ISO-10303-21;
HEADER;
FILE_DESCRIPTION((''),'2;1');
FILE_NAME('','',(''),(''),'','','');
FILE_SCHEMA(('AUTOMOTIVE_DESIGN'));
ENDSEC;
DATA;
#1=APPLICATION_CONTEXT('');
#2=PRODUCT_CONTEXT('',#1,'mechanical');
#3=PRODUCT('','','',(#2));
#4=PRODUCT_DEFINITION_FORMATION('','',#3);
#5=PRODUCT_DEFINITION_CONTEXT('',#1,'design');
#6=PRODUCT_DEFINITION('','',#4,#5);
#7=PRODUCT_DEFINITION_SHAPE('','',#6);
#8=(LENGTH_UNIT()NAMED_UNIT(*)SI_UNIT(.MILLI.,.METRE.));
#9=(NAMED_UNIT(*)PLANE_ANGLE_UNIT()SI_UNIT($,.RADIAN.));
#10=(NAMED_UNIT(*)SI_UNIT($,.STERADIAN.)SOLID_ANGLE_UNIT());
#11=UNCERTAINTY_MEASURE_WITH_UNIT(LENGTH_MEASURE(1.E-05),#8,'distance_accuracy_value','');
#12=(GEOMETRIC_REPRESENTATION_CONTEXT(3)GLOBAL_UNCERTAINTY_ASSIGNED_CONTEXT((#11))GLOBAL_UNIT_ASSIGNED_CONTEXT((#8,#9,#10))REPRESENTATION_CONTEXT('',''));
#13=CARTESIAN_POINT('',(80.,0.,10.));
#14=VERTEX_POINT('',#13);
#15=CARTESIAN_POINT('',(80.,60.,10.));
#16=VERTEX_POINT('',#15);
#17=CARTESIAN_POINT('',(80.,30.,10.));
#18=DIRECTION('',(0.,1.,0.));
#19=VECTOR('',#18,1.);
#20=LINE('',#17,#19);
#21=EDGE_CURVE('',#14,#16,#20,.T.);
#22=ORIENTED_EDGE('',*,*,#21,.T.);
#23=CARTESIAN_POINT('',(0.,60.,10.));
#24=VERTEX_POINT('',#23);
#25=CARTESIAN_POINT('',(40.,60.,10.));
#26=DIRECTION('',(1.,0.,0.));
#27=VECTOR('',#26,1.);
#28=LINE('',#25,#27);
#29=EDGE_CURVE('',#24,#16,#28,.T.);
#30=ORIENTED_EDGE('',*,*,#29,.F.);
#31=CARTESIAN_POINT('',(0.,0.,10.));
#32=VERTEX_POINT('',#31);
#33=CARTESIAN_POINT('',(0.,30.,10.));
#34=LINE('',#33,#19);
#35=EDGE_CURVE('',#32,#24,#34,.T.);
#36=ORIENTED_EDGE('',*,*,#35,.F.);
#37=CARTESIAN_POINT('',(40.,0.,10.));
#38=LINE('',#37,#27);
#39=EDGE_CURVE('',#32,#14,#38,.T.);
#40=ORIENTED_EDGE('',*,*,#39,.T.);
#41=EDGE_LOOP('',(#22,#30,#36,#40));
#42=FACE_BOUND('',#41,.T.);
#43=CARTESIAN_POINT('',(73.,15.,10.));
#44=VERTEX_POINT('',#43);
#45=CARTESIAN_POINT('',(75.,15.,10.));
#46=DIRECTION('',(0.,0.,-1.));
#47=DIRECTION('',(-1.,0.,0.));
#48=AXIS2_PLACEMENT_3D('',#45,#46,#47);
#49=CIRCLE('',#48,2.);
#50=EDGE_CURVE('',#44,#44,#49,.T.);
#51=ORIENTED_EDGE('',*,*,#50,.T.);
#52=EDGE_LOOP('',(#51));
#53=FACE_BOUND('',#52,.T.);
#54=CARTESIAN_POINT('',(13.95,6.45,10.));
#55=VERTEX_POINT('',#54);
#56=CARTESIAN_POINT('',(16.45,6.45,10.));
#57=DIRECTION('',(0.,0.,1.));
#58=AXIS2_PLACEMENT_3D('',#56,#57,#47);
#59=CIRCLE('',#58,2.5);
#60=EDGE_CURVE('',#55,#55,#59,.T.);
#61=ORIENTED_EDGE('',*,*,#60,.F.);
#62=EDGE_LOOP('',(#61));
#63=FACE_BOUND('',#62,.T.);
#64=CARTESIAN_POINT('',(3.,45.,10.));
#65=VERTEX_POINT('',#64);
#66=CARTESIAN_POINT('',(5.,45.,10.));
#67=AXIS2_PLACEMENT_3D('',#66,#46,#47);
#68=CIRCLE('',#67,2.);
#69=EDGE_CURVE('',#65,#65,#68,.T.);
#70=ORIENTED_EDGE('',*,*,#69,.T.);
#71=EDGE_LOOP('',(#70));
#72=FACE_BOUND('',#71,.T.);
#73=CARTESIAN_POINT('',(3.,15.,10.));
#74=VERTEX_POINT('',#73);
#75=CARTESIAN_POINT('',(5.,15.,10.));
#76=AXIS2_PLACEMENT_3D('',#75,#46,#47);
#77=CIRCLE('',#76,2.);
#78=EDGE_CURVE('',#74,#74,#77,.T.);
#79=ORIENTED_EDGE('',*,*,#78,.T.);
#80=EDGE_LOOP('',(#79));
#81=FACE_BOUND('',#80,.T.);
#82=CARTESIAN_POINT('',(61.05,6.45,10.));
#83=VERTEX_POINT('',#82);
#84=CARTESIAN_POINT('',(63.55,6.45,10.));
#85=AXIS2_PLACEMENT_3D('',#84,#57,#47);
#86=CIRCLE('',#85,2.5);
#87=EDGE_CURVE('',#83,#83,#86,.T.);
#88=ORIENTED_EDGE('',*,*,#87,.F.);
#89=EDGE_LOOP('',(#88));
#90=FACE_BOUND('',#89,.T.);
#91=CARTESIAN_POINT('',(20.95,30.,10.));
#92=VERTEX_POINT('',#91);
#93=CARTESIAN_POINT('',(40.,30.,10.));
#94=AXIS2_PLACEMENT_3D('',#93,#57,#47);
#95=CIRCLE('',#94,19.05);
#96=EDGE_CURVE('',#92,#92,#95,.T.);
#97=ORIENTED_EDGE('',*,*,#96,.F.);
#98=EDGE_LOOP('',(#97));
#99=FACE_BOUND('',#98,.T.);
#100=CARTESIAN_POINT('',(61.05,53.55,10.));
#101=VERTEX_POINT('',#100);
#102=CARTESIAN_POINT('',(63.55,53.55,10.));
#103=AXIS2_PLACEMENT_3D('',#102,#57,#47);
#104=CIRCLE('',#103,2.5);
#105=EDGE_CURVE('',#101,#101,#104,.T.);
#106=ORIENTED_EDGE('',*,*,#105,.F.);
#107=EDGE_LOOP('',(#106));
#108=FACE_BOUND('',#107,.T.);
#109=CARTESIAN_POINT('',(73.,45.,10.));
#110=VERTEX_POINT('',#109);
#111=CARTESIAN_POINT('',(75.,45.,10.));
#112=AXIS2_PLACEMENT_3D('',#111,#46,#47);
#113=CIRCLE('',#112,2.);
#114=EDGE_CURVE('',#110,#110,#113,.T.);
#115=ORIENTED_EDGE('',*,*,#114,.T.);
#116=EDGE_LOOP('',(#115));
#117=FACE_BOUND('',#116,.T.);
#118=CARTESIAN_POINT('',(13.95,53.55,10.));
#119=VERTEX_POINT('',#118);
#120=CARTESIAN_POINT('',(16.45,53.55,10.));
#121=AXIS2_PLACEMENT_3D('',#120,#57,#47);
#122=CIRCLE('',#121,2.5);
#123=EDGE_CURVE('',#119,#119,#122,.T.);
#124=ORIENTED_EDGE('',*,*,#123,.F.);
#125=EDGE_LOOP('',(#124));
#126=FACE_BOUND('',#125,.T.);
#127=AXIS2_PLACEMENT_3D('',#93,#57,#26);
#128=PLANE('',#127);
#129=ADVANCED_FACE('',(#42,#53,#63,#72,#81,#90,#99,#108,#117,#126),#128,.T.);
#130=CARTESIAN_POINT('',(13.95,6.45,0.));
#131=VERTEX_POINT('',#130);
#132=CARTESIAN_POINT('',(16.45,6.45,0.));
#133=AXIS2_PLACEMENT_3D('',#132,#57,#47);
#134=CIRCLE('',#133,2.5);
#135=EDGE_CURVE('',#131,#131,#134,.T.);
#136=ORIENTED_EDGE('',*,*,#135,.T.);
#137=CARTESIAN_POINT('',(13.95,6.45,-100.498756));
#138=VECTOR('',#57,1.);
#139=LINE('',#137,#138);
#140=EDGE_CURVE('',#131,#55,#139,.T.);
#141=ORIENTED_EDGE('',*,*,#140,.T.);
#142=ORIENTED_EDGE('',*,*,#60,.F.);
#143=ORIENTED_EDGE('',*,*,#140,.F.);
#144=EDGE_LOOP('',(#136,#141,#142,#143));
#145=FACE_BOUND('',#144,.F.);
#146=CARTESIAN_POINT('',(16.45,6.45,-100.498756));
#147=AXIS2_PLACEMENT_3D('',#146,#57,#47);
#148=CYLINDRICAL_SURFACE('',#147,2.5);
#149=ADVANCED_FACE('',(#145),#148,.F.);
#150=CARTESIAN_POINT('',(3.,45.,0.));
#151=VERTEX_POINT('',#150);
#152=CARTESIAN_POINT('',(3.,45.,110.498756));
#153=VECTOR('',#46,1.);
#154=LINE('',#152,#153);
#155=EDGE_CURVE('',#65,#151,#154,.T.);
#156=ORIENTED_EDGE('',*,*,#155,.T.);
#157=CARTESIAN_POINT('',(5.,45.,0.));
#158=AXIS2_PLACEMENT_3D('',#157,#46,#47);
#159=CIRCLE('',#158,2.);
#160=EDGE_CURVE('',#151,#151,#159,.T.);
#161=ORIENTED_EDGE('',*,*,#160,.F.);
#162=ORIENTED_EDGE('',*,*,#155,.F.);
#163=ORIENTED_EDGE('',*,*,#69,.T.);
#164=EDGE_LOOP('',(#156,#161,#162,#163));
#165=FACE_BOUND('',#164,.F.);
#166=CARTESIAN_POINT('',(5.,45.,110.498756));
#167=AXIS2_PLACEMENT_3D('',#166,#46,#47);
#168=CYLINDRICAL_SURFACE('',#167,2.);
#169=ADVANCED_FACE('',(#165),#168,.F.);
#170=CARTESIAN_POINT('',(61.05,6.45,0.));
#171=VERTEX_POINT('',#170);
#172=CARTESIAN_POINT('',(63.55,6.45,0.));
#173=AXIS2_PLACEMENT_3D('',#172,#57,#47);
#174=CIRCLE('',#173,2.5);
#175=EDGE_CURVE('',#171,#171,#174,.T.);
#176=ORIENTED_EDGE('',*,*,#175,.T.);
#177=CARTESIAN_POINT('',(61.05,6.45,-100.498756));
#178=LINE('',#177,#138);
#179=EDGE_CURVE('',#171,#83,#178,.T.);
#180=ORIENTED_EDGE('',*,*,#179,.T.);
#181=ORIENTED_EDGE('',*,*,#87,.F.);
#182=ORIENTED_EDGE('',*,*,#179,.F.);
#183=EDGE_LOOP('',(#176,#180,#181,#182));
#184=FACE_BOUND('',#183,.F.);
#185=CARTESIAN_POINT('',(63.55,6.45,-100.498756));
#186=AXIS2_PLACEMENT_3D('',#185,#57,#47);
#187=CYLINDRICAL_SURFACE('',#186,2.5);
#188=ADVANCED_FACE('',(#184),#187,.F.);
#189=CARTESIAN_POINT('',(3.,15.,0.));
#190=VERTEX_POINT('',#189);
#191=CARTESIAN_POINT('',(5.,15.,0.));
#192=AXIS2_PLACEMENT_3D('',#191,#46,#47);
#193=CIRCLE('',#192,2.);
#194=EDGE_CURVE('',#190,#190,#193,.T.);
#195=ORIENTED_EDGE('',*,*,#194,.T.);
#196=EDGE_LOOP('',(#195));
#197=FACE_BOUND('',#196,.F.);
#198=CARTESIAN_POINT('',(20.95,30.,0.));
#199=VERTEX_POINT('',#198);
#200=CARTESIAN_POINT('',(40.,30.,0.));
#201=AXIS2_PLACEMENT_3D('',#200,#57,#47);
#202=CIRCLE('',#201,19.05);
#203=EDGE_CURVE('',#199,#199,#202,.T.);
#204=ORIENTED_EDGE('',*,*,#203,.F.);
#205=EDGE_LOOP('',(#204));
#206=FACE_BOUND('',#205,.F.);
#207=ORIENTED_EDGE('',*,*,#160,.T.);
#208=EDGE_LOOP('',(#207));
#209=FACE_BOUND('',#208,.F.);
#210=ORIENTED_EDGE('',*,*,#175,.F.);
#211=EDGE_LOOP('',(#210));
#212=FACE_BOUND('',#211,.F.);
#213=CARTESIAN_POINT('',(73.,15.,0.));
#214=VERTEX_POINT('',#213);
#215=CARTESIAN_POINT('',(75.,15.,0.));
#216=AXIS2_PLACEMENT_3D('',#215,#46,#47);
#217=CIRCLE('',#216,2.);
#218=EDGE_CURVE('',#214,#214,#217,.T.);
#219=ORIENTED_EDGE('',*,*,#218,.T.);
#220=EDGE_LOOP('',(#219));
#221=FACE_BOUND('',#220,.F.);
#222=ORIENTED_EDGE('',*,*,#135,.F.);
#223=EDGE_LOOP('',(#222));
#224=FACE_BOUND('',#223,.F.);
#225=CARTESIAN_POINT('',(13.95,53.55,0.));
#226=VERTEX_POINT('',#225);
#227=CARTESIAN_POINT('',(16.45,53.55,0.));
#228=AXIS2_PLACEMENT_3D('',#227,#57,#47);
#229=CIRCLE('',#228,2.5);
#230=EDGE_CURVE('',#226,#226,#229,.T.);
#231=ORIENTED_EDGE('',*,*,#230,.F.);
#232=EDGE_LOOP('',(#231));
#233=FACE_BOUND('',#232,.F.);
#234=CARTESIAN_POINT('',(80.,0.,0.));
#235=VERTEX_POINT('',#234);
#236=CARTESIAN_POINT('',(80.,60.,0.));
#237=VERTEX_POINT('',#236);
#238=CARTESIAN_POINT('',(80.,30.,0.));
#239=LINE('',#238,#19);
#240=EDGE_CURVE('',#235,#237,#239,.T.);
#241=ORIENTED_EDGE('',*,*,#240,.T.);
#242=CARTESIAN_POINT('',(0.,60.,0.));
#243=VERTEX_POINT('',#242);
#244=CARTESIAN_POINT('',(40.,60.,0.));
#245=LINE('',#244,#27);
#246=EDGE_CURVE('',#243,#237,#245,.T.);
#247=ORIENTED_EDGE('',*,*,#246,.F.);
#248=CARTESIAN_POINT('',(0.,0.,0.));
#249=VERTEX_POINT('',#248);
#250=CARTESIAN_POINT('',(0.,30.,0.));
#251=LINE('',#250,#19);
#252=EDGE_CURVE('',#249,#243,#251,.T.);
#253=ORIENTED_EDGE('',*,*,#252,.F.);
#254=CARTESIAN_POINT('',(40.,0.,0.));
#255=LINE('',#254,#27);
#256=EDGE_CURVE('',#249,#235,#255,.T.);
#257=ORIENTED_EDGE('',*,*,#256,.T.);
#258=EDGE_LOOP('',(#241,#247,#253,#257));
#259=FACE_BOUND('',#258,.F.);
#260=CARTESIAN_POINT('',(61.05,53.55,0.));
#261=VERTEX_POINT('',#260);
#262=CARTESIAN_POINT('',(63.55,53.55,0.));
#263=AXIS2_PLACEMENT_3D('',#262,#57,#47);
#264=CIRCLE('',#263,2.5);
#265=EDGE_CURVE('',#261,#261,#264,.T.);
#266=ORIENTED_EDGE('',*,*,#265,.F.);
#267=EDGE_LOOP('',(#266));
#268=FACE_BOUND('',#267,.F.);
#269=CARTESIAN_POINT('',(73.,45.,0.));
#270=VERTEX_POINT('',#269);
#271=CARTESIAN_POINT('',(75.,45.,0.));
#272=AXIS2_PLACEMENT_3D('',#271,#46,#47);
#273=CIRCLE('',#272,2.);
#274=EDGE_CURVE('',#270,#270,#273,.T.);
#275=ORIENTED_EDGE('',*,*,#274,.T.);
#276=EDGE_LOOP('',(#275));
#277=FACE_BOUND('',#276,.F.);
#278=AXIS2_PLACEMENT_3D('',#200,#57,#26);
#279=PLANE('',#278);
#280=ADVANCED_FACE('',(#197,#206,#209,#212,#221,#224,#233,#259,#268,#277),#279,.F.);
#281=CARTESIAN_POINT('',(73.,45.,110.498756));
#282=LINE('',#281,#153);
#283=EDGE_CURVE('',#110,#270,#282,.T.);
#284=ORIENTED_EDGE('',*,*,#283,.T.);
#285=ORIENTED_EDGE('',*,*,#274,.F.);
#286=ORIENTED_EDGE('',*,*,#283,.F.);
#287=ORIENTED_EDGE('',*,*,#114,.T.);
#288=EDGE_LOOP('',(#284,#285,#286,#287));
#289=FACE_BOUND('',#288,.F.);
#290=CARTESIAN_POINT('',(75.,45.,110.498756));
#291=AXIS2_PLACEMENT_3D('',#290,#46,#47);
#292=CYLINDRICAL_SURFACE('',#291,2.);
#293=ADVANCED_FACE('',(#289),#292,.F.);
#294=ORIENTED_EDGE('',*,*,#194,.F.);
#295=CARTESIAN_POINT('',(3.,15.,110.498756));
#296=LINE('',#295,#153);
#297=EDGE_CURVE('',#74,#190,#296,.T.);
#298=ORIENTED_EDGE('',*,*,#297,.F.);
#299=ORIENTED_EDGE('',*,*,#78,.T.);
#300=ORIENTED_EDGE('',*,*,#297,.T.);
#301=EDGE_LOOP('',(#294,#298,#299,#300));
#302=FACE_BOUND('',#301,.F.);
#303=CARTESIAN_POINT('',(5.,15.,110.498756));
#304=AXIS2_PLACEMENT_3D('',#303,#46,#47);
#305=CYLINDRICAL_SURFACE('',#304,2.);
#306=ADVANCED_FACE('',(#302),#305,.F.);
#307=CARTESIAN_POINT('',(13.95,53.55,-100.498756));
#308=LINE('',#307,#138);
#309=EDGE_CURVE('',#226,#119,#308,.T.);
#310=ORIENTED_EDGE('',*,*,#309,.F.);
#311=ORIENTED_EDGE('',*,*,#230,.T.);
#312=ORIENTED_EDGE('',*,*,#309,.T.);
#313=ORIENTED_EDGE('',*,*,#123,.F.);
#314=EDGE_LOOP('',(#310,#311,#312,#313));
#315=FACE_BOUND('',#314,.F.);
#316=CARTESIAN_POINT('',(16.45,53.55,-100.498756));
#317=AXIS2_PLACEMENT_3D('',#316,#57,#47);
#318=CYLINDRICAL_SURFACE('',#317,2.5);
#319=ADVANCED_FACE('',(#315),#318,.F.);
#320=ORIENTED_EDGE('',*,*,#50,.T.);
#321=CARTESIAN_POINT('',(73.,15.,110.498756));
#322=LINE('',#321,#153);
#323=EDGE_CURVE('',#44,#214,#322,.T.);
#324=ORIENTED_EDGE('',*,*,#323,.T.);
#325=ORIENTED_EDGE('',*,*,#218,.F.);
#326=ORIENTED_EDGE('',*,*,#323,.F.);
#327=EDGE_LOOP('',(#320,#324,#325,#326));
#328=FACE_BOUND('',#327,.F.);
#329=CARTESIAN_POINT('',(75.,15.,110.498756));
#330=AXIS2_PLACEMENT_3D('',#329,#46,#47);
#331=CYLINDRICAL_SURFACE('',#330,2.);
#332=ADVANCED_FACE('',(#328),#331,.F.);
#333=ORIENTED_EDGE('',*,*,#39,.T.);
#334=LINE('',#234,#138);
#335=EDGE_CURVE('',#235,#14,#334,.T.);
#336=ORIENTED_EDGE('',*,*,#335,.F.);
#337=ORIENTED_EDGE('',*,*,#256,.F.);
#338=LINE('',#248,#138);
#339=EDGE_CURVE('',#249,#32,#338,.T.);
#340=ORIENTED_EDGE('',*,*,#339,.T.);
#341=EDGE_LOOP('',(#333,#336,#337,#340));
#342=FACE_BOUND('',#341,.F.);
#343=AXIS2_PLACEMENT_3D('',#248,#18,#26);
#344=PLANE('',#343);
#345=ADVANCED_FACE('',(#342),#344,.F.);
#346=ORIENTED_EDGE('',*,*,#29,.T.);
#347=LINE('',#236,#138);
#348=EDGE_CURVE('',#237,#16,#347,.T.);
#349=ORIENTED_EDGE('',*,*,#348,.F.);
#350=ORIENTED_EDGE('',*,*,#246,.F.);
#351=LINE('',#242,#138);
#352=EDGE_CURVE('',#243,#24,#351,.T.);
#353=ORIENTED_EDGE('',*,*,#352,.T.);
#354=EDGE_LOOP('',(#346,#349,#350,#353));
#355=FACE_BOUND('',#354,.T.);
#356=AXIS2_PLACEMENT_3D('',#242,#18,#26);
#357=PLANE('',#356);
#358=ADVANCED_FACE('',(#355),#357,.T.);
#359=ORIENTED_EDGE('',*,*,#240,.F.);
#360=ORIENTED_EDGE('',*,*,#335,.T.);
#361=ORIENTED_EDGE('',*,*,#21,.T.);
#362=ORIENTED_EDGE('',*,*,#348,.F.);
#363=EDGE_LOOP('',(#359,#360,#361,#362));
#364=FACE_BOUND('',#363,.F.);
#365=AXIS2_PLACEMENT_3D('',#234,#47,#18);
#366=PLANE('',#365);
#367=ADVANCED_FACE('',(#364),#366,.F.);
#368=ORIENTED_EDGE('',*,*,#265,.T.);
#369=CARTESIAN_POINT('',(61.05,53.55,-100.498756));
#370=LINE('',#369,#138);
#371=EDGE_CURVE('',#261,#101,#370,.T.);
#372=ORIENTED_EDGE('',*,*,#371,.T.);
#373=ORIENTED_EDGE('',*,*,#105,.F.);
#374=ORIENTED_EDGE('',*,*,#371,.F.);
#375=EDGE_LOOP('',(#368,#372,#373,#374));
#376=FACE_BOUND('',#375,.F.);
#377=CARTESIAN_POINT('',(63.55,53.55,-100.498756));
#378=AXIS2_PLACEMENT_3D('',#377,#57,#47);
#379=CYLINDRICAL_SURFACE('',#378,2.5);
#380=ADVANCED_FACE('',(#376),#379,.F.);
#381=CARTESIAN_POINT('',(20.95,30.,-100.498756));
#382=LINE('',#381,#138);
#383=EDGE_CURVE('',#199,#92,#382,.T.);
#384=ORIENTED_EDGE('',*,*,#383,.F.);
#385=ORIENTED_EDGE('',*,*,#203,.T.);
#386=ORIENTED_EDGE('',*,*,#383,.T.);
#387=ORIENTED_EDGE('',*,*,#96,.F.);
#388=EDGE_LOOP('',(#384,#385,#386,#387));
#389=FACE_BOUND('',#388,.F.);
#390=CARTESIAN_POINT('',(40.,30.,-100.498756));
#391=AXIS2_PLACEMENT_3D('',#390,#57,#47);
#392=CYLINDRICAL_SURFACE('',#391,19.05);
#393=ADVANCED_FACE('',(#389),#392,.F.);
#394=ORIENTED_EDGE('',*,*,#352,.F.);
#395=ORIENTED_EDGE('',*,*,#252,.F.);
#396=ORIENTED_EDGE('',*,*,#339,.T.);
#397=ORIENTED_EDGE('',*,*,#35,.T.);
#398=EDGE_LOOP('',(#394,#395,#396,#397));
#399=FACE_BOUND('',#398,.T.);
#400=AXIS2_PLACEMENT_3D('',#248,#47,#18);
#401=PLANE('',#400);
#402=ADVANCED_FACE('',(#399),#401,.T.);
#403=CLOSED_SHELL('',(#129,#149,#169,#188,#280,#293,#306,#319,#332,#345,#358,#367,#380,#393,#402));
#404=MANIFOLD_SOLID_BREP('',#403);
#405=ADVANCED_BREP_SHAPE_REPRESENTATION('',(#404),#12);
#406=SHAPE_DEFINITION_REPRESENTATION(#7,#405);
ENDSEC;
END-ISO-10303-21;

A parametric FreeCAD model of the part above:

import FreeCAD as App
import Part
import Sketcher
from FreeCAD import Vector


def add_polygon(sketch, points):
    """Adds a closed chain of lines whose ends are joined by coincident constraints."""
    first, n = sketch.GeometryCount, len(points)
    for a, b in zip(points, points[1:] + points[:1]):
        sketch.addGeometry(Part.LineSegment(App.Vector(*a, 0), App.Vector(*b, 0)), False)
    for i in range(n):
        sketch.addConstraint(Sketcher.Constraint("Coincident", first + i, 2, first + (i + 1) % n, 1))

doc = App.newDocument("Part")
body = doc.addObject("PartDesign::Body", "Body")

sketch1 = body.newObject("Sketcher::SketchObject", "Sketch")
sketch1.AttachmentSupport = (doc.getObject("XY_Plane"), [""])
sketch1.MapMode = "FlatFace"
add_polygon(sketch1, [(0, 60), (0, 0), (80, 0), (80, 60)])
sketch1.addConstraint([
    Sketcher.Constraint("Vertical", 0),
    Sketcher.Constraint("Horizontal", 1),
    Sketcher.Constraint("Vertical", 2),
    Sketcher.Constraint("Horizontal", 3),
    Sketcher.Constraint("Coincident", 0, 2, -1, 1),
    Sketcher.Constraint("DistanceX", 1, 1, 1, 2, 80.0),
    Sketcher.Constraint("DistanceY", 0, 2, 0, 1, 60.0),
])
pad1 = body.newObject("PartDesign::Pad", "Pad")
pad1.Profile = sketch1
pad1.Length = 10

sketch2 = body.newObject("Sketcher::SketchObject", "Sketch001")
sketch2.AttachmentSupport = (doc.getObject("XY_Plane"), [""])
sketch2.MapMode = "FlatFace"
sketch2.addGeometry(Part.Circle(Vector(40, 30, 0), Vector(0, 0, 1), 19), False)
sketch2.addConstraint([
    Sketcher.Constraint("Diameter", 0, 38.1),
    Sketcher.Constraint("DistanceX", -1, 1, 0, 3, 40.0),
    Sketcher.Constraint("DistanceY", -1, 1, 0, 3, 30.0),
])
doc.recompute()
hole = body.newObject("PartDesign::Hole", "Hole")
hole.Profile = sketch2
hole.ThreadType = "None"
hole.Diameter = 38.1
hole.DepthType = "ThroughAll"
hole.Reversed = True

sketch3 = body.newObject("Sketcher::SketchObject", "Sketch002")
sketch3.AttachmentSupport = (doc.getObject("XY_Plane"), [""])
sketch3.MapMode = "FlatFace"
sketch3.addGeometry([
    Part.Circle(Vector(16.4, 6.5, 0), Vector(0, 0, 1), 2.5),
    Part.Circle(Vector(63.5, 6.5, 0), Vector(0, 0, 1), 2.5),
    Part.Circle(Vector(63.5, 53.5, 0), Vector(0, 0, 1), 2.5),
    Part.Circle(Vector(16.4, 53.5, 0), Vector(0, 0, 1), 2.5),
], False)
sketch3.addConstraint([
    Sketcher.Constraint("Equal", 0, 1),
    Sketcher.Constraint("Equal", 1, 2),
    Sketcher.Constraint("Equal", 2, 3),
    Sketcher.Constraint("Horizontal", 0, 3, 1, 3),
    Sketcher.Constraint("Horizontal", 2, 3, 3, 3),
    Sketcher.Constraint("Vertical", 1, 3, 2, 3),
    Sketcher.Constraint("Vertical", 0, 3, 3, 3),
    Sketcher.Constraint("Diameter", 0, 5.0),
    Sketcher.Constraint("DistanceX", 0, 3, 1, 3, 47.1),
    Sketcher.Constraint("DistanceY", 1, 3, 2, 3, 47.1),
    Sketcher.Constraint("DistanceX", -1, 1, 0, 3, 16.45),
    Sketcher.Constraint("DistanceY", -1, 1, 0, 3, 6.45),
])
doc.recompute()
hole2 = body.newObject("PartDesign::Hole", "Hole001")
hole2.Profile = sketch3
hole2.ThreadType = "None"
hole2.Diameter = 5
hole2.DepthType = "ThroughAll"
hole2.Reversed = True

sketch4 = body.newObject("Sketcher::SketchObject", "Sketch003")
sketch4.AttachmentSupport = (doc.getObject("XY_Plane"), [""])
sketch4.MapMode = "FlatFace"
sketch4.AttachmentOffset = App.Placement(Vector(0, 0, 10), App.Rotation())
sketch4.addGeometry([
    Part.Circle(Vector(5, 45, 0), Vector(0, 0, 1), 2),
    Part.Circle(Vector(75, 45, 0), Vector(0, 0, 1), 2),
    Part.Circle(Vector(75, 15, 0), Vector(0, 0, 1), 2),
    Part.Circle(Vector(5, 15, 0), Vector(0, 0, 1), 2),
], False)
sketch4.addConstraint([
    Sketcher.Constraint("Equal", 0, 1),
    Sketcher.Constraint("Equal", 1, 2),
    Sketcher.Constraint("Equal", 2, 3),
    Sketcher.Constraint("Horizontal", 0, 3, 1, 3),
    Sketcher.Constraint("Horizontal", 2, 3, 3, 3),
    Sketcher.Constraint("Vertical", 1, 3, 2, 3),
    Sketcher.Constraint("Vertical", 0, 3, 3, 3),
    Sketcher.Constraint("Diameter", 0, 4.0),
    Sketcher.Constraint("DistanceX", -1, 1, 0, 3, 5.0),
    Sketcher.Constraint("DistanceY", -1, 1, 0, 3, 45.0),
    Sketcher.Constraint("DistanceX", -1, 1, 1, 3, 75.0),
    Sketcher.Constraint("DistanceY", -1, 1, 2, 3, 15.0),
])
doc.recompute()
hole3 = body.newObject("PartDesign::Hole", "Hole002")
hole3.Profile = sketch4
hole3.ThreadType = "None"
hole3.Diameter = 4
hole3.DepthType = "ThroughAll"

doc.recompute()
